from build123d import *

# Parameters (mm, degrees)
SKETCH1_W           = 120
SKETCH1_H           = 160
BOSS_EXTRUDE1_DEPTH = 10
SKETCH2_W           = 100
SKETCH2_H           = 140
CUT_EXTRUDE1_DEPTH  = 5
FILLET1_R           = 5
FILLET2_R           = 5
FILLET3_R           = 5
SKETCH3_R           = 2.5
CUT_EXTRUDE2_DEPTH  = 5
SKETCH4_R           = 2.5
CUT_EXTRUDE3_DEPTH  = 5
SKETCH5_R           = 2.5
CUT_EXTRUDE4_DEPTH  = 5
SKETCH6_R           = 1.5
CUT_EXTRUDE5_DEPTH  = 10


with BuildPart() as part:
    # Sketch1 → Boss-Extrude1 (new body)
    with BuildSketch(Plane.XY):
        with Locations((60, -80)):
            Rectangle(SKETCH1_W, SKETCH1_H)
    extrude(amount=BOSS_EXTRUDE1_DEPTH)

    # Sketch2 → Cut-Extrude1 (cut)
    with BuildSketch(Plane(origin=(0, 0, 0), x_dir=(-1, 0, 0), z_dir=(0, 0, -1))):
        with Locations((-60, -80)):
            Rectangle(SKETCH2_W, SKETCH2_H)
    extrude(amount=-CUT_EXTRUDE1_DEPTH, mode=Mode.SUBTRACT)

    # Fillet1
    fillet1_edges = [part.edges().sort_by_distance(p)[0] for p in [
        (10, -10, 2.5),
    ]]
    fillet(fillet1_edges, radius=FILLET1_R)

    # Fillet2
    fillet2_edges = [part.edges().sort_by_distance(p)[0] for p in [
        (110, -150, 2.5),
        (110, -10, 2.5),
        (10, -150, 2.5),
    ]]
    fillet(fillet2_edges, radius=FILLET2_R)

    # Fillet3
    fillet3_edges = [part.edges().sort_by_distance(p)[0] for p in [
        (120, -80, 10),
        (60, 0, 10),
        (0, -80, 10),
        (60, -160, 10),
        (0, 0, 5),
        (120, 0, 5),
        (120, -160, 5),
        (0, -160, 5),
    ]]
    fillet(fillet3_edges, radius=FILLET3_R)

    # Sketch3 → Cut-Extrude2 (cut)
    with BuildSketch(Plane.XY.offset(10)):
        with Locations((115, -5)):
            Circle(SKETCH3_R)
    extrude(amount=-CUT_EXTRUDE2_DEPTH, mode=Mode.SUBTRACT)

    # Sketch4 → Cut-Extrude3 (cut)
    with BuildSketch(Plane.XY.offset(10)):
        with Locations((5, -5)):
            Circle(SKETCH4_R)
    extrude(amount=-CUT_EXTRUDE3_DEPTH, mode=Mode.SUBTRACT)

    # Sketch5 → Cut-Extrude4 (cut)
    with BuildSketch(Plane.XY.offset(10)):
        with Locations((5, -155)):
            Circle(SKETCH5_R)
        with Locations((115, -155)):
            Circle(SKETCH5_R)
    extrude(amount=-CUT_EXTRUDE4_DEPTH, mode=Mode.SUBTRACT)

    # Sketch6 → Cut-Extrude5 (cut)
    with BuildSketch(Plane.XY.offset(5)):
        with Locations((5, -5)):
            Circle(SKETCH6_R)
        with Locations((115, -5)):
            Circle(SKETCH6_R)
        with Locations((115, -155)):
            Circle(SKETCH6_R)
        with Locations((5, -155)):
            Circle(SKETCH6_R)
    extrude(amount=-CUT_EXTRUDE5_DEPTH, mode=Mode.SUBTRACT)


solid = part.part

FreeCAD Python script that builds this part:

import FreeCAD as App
import Part
import Sketcher
from FreeCAD import Vector


def edges_at(feature, points):
    """Names of the edges that pass closest to the given points."""
    edges = feature.Shape.Edges
    near = lambda p: min(range(len(edges)), key=lambda i: edges[i].distToShape(Part.Vertex(*p))[0])
    return sorted({f"Edge{near(p) + 1}" for p in points})


def add_polygon(sketch, points):
    """Adds a closed chain of lines whose ends are joined by coincident constraints."""
    first, n = sketch.GeometryCount, len(points)
    for a, b in zip(points, points[1:] + points[:1]):
        sketch.addGeometry(Part.LineSegment(App.Vector(*a, 0), App.Vector(*b, 0)), False)
    for i in range(n):
        sketch.addConstraint(Sketcher.Constraint("Coincident", first + i, 2, first + (i + 1) % n, 1))

doc = App.newDocument("Part")
params = doc.addObject("Spreadsheet::Sheet", "Params")
for row, (alias, value) in enumerate([
    ("sketch1_width", "120 mm"),
    ("sketch1_height", "160 mm"),
    ("pad1_length", "10 mm"),
    ("sketch2_width", "100 mm"),
    ("sketch2_height", "140 mm"),
    ("pocket1_length", "5 mm"),
    ("fillet_radius", "5 mm"),
    ("fillet2_radius", "5 mm"),
    ("fillet3_radius", "5 mm"),
    ("sketch3_diameter", "5 mm"),
    ("pocket2_length", "5 mm"),
    ("sketch4_diameter", "5 mm"),
    ("pocket3_length", "5 mm"),
    ("sketch5_diameter", "5 mm"),
    ("pocket4_length", "5 mm"),
    ("sketch6_diameter", "3 mm"),
    ("pocket5_length", "10 mm"),
], start=1):
    params.set(f"A{row}", alias)
    params.set(f"B{row}", "=" + value)
    params.setAlias(f"B{row}", alias)

body = doc.addObject("PartDesign::Body", "Body")

sketch1 = body.newObject("Sketcher::SketchObject", "Sketch")
sketch1.AttachmentSupport = (doc.getObject("XY_Plane"), [""])
sketch1.MapMode = "FlatFace"
add_polygon(sketch1, [(0, 0), (0, -160), (120, -160), (120, 0)])
sketch1.addConstraint([
    Sketcher.Constraint("Vertical", 0),
    Sketcher.Constraint("Horizontal", 1),
    Sketcher.Constraint("Vertical", 2),
    Sketcher.Constraint("Horizontal", 3),
    Sketcher.Constraint("Coincident", 3, 2, -1, 1),
    Sketcher.Constraint("DistanceX", 1, 1, 1, 2, 120.0),
    Sketcher.Constraint("DistanceY", 0, 2, 0, 1, 160.0),
])
sketch1.setExpression("Constraints[9]", "Params.sketch1_width")
sketch1.setExpression("Constraints[10]", "Params.sketch1_height")
pad1 = body.newObject("PartDesign::Pad", "Pad")
pad1.Profile = sketch1
pad1.setExpression("Length", "Params.pad1_length")

sketch2 = body.newObject("Sketcher::SketchObject", "Sketch001")
sketch2.AttachmentSupport = (doc.getObject("XY_Plane"), [""])
sketch2.MapMode = "FlatFace"
add_polygon(sketch2, [(110, -10), (110, -150), (10, -150), (10, -10)])
sketch2.addConstraint([
    Sketcher.Constraint("Vertical", 0),
    Sketcher.Constraint("Horizontal", 1),
    Sketcher.Constraint("Vertical", 2),
    Sketcher.Constraint("Horizontal", 3),
    Sketcher.Constraint("DistanceX", 1, 2, 1, 1, 100.0),
    Sketcher.Constraint("DistanceY", 0, 2, 0, 1, 140.0),
    Sketcher.Constraint("DistanceX", -1, 1, 0, 2, 110.0),
    Sketcher.Constraint("DistanceY", 0, 2, -1, 1, 150.0),
])
sketch2.setExpression("Constraints[8]", "Params.sketch2_width")
sketch2.setExpression("Constraints[9]", "Params.sketch2_height")
pocket1 = body.newObject("PartDesign::Pocket", "Pocket")
pocket1.Profile = sketch2
pocket1.setExpression("Length", "Params.pocket1_length")
pocket1.Reversed = True
doc.recompute()

fillet = body.newObject("PartDesign::Fillet", "Fillet")
fillet.Base = (pocket1, edges_at(pocket1, [(10, -10, 2.5)]))
fillet.setExpression("Radius", "Params.fillet_radius")
doc.recompute()

fillet2 = body.newObject("PartDesign::Fillet", "Fillet001")
fillet2.Base = (fillet, edges_at(fillet, [(110, -150, 2.5), (110, -10, 2.5), (10, -150, 2.5)]))
fillet2.setExpression("Radius", "Params.fillet2_radius")
doc.recompute()

fillet3 = body.newObject("PartDesign::Fillet", "Fillet002")
fillet3.Base = (fillet2, edges_at(fillet2, [
    (120, -80, 10),
    (60, 0, 10),
    (0, -80, 10),
    (60, -160, 10),
    (0, 0, 5),
    (120, 0, 5),
    (120, -160, 5),
    (0, -160, 5),
]))
fillet3.setExpression("Radius", "Params.fillet3_radius")

sketch3 = body.newObject("Sketcher::SketchObject", "Sketch002")
sketch3.AttachmentSupport = (doc.getObject("XY_Plane"), [""])
sketch3.MapMode = "FlatFace"
sketch3.AttachmentOffset = App.Placement(Vector(0, 0, 10), App.Rotation())
sketch3.addGeometry(Part.Circle(Vector(115, -5, 0), Vector(0, 0, 1), 2.5), False)
sketch3.addConstraint([
    Sketcher.Constraint("Diameter", 0, 5.0),
    Sketcher.Constraint("DistanceX", -1, 1, 0, 3, 115.0),
    Sketcher.Constraint("DistanceY", 0, 3, -1, 1, 5.0),
])
sketch3.setExpression("Constraints[0]", "Params.sketch3_diameter")
pocket2 = body.newObject("PartDesign::Pocket", "Pocket001")
pocket2.Profile = sketch3
pocket2.setExpression("Length", "Params.pocket2_length")

sketch4 = body.newObject("Sketcher::SketchObject", "Sketch003")
sketch4.AttachmentSupport = (doc.getObject("XY_Plane"), [""])
sketch4.MapMode = "FlatFace"
sketch4.AttachmentOffset = App.Placement(Vector(0, 0, 10), App.Rotation())
sketch4.addGeometry(Part.Circle(Vector(5, -5, 0), Vector(0, 0, 1), 2.5), False)
sketch4.addConstraint([
    Sketcher.Constraint("Diameter", 0, 5.0),
    Sketcher.Constraint("DistanceX", -1, 1, 0, 3, 5.0),
    Sketcher.Constraint("DistanceY", 0, 3, -1, 1, 5.0),
])
sketch4.setExpression("Constraints[0]", "Params.sketch4_diameter")
pocket3 = body.newObject("PartDesign::Pocket", "Pocket002")
pocket3.Profile = sketch4
pocket3.setExpression("Length", "Params.pocket3_length")

sketch5 = body.newObject("Sketcher::SketchObject", "Sketch004")
sketch5.AttachmentSupport = (doc.getObject("XY_Plane"), [""])
sketch5.MapMode = "FlatFace"
sketch5.AttachmentOffset = App.Placement(Vector(0, 0, 10), App.Rotation())
sketch5.addGeometry([
    Part.Circle(Vector(5, -155, 0), Vector(0, 0, 1), 2.5),
    Part.Circle(Vector(115, -155, 0), Vector(0, 0, 1), 2.5),
], False)
sketch5.addConstraint([
    Sketcher.Constraint("Equal", 0, 1),
    Sketcher.Constraint("Horizontal", 0, 3, 1, 3),
    Sketcher.Constraint("Diameter", 0, 5.0),
    Sketcher.Constraint("DistanceX", -1, 1, 0, 3, 5.0),
    Sketcher.Constraint("DistanceY", 0, 3, -1, 1, 155.0),
    Sketcher.Constraint("DistanceX", -1, 1, 1, 3, 115.0),
])
sketch5.setExpression("Constraints[2]", "Params.sketch5_diameter")
pocket4 = body.newObject("PartDesign::Pocket", "Pocket003")
pocket4.Profile = sketch5
pocket4.setExpression("Length", "Params.pocket4_length")

sketch6 = body.newObject("Sketcher::SketchObject", "Sketch005")
sketch6.AttachmentSupport = (doc.getObject("XY_Plane"), [""])
sketch6.MapMode = "FlatFace"
sketch6.AttachmentOffset = App.Placement(Vector(0, 0, 5), App.Rotation())
sketch6.addGeometry([
    Part.Circle(Vector(5, -5, 0), Vector(0, 0, 1), 1.5),
    Part.Circle(Vector(115, -5, 0), Vector(0, 0, 1), 1.5),
    Part.Circle(Vector(115, -155, 0), Vector(0, 0, 1), 1.5),
    Part.Circle(Vector(5, -155, 0), Vector(0, 0, 1), 1.5),
], False)
sketch6.addConstraint([
    Sketcher.Constraint("Equal", 0, 1),
    Sketcher.Constraint("Equal", 1, 2),
    Sketcher.Constraint("Equal", 2, 3),
    Sketcher.Constraint("Horizontal", 0, 3, 1, 3),
    Sketcher.Constraint("Horizontal", 2, 3, 3, 3),
    Sketcher.Constraint("Vertical", 1, 3, 2, 3),
    Sketcher.Constraint("Vertical", 0, 3, 3, 3),
    Sketcher.Constraint("Diameter", 0, 3.0),
    Sketcher.Constraint("DistanceX", -1, 1, 0, 3, 5.0),
    Sketcher.Constraint("DistanceY", 0, 3, -1, 1, 5.0),
    Sketcher.Constraint("DistanceX", -1, 1, 1, 3, 115.0),
    Sketcher.Constraint("DistanceY", 2, 3, -1, 1, 155.0),
])
sketch6.setExpression("Constraints[7]", "Params.sketch6_diameter")
pocket5 = body.newObject("PartDesign::Pocket", "Pocket004")
pocket5.Profile = sketch6
pocket5.setExpression("Length", "Params.pocket5_length")

doc.recompute()
